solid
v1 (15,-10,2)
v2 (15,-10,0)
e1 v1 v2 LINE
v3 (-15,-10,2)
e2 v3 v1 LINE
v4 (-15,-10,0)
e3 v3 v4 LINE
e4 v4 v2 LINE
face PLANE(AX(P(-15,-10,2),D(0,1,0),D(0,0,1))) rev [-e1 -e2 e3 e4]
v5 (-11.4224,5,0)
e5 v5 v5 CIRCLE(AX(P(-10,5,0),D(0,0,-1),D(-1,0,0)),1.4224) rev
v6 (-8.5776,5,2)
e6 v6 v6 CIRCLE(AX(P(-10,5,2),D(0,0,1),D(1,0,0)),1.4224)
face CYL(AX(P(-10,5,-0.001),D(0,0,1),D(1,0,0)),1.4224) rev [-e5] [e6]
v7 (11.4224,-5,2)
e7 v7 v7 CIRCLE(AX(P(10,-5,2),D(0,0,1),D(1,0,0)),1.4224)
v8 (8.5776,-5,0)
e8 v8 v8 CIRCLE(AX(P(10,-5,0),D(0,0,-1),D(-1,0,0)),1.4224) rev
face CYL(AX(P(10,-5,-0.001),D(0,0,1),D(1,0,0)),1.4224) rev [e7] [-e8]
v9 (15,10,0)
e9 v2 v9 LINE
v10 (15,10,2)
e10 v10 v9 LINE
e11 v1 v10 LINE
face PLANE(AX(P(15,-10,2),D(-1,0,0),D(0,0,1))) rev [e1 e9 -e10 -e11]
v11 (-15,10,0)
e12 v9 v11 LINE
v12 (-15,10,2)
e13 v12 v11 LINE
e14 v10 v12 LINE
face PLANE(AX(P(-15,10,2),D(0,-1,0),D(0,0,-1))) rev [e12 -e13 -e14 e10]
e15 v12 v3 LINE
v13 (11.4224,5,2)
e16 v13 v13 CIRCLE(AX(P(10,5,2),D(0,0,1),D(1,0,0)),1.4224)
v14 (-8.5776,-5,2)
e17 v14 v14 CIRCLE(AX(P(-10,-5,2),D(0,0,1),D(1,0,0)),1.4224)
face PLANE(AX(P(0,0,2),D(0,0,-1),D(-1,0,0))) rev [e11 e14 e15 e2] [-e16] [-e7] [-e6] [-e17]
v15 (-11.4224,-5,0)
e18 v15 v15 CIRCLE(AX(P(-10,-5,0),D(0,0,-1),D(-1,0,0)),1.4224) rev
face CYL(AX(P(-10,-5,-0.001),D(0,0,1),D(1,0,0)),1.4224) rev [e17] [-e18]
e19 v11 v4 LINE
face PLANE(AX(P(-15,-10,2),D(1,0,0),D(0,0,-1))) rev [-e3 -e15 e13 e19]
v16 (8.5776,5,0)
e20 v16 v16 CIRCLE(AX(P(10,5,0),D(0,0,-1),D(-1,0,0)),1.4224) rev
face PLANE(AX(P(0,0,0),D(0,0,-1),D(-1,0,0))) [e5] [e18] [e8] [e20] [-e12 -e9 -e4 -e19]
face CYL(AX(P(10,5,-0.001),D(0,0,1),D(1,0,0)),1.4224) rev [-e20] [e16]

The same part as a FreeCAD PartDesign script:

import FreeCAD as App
import Part
import Sketcher
from FreeCAD import Vector
Q = App.Units.Quantity


def add_polygon(sketch, points):
    """Adds a closed chain of lines whose ends are joined by coincident constraints."""
    first, n = sketch.GeometryCount, len(points)
    for a, b in zip(points, points[1:] + points[:1]):
        sketch.addGeometry(Part.LineSegment(App.Vector(*a, 0), App.Vector(*b, 0)), False)
    for i in range(n):
        sketch.addConstraint(Sketcher.Constraint("Coincident", first + i, 2, first + (i + 1) % n, 1))

doc = App.newDocument("Part")
body = doc.addObject("PartDesign::Body", "Body")

# Sketch on XY plane
sketch1 = body.newObject("Sketcher::SketchObject", "Sketch")
sketch1.AttachmentSupport = (doc.getObject("XY_Plane"), [""])
sketch1.MapMode = "FlatFace"
add_polygon(sketch1, [(-15, 10), (-15, -10), (15, -10), (15, 10)])  # lines 0-3
sketch1.addConstraint([
    Sketcher.Constraint("Vertical", 0),
    Sketcher.Constraint("Horizontal", 1),
    Sketcher.Constraint("Vertical", 2),
    Sketcher.Constraint("Horizontal", 3),
    Sketcher.Constraint("Symmetric", 0, 2, 2, 2, -1, 1),
    Sketcher.Constraint("DistanceX", 1, 1, 1, 2, Q("30 mm")),
    Sketcher.Constraint("DistanceY", 0, 2, 0, 1, Q("20 mm")),
])
pad1 = body.newObject("PartDesign::Pad", "Pad")
pad1.Profile = sketch1
pad1.Length = 2

# Sketch on XY plane
sketch2 = body.newObject("Sketcher::SketchObject", "Sketch001")
sketch2.AttachmentSupport = (doc.getObject("XY_Plane"), [""])
sketch2.MapMode = "FlatFace"
sketch2.AttachmentOffset = App.Placement(Vector(0, 0, 2), App.Rotation())
sketch2.addGeometry(Part.Circle(Vector(10, 5, 0), Vector(0, 0, 1), 1.4224), False)
sketch2.addConstraint([
    Sketcher.Constraint("DistanceX", -1, 1, 0, 3, Q("10 mm")),
    Sketcher.Constraint("DistanceY", -1, 1, 0, 3, Q("5 mm")),
    Sketcher.Constraint("Diameter", 0, Q("2.8448 mm")),
])
pocket1 = body.newObject("PartDesign::Pocket", "Pocket")
pocket1.Profile = sketch2
pocket1.Type = "UpToFirst"

# Sketch on XY plane
sketch3 = body.newObject("Sketcher::SketchObject", "Sketch002")
sketch3.AttachmentSupport = (doc.getObject("XY_Plane"), [""])
sketch3.MapMode = "FlatFace"
sketch3.AttachmentOffset = App.Placement(Vector(0, 0, 2), App.Rotation())
sketch3.addGeometry(Part.Circle(Vector(-10, 5, 0), Vector(0, 0, 1), 1.4224), False)
sketch3.addConstraint([
    Sketcher.Constraint("DistanceX", 0, 3, -1, 1, Q("10 mm")),
    Sketcher.Constraint("DistanceY", -1, 1, 0, 3, Q("5 mm")),
    Sketcher.Constraint("Diameter", 0, Q("2.8448 mm")),
])
pocket2 = body.newObject("PartDesign::Pocket", "Pocket001")
pocket2.Profile = sketch3
pocket2.Type = "UpToFirst"

# Sketch on XY plane
sketch4 = body.newObject("Sketcher::SketchObject", "Sketch003")
sketch4.AttachmentSupport = (doc.getObject("XY_Plane"), [""])
sketch4.MapMode = "FlatFace"
sketch4.AttachmentOffset = App.Placement(Vector(0, 0, 2), App.Rotation())
sketch4.addGeometry(Part.Circle(Vector(-10, -5, 0), Vector(0, 0, 1), 1.4224), False)
sketch4.addConstraint([
    Sketcher.Constraint("DistanceX", 0, 3, -1, 1, Q("10 mm")),
    Sketcher.Constraint("DistanceY", 0, 3, -1, 1, Q("5 mm")),
    Sketcher.Constraint("Diameter", 0, Q("2.8448 mm")),
])
pocket3 = body.newObject("PartDesign::Pocket", "Pocket002")
pocket3.Profile = sketch4
pocket3.Type = "UpToFirst"

# Sketch on XY plane
sketch5 = body.newObject("Sketcher::SketchObject", "Sketch004")
sketch5.AttachmentSupport = (doc.getObject("XY_Plane"), [""])
sketch5.MapMode = "FlatFace"
sketch5.AttachmentOffset = App.Placement(Vector(0, 0, 2), App.Rotation())
sketch5.addGeometry(Part.Circle(Vector(10, -5, 0), Vector(0, 0, 1), 1.4224), False)
sketch5.addConstraint([
    Sketcher.Constraint("DistanceX", -1, 1, 0, 3, Q("10 mm")),
    Sketcher.Constraint("DistanceY", 0, 3, -1, 1, Q("5 mm")),
    Sketcher.Constraint("Diameter", 0, Q("2.8448 mm")),
])
pocket4 = body.newObject("PartDesign::Pocket", "Pocket003")
pocket4.Profile = sketch5
pocket4.Type = "UpToFirst"

doc.recompute()
